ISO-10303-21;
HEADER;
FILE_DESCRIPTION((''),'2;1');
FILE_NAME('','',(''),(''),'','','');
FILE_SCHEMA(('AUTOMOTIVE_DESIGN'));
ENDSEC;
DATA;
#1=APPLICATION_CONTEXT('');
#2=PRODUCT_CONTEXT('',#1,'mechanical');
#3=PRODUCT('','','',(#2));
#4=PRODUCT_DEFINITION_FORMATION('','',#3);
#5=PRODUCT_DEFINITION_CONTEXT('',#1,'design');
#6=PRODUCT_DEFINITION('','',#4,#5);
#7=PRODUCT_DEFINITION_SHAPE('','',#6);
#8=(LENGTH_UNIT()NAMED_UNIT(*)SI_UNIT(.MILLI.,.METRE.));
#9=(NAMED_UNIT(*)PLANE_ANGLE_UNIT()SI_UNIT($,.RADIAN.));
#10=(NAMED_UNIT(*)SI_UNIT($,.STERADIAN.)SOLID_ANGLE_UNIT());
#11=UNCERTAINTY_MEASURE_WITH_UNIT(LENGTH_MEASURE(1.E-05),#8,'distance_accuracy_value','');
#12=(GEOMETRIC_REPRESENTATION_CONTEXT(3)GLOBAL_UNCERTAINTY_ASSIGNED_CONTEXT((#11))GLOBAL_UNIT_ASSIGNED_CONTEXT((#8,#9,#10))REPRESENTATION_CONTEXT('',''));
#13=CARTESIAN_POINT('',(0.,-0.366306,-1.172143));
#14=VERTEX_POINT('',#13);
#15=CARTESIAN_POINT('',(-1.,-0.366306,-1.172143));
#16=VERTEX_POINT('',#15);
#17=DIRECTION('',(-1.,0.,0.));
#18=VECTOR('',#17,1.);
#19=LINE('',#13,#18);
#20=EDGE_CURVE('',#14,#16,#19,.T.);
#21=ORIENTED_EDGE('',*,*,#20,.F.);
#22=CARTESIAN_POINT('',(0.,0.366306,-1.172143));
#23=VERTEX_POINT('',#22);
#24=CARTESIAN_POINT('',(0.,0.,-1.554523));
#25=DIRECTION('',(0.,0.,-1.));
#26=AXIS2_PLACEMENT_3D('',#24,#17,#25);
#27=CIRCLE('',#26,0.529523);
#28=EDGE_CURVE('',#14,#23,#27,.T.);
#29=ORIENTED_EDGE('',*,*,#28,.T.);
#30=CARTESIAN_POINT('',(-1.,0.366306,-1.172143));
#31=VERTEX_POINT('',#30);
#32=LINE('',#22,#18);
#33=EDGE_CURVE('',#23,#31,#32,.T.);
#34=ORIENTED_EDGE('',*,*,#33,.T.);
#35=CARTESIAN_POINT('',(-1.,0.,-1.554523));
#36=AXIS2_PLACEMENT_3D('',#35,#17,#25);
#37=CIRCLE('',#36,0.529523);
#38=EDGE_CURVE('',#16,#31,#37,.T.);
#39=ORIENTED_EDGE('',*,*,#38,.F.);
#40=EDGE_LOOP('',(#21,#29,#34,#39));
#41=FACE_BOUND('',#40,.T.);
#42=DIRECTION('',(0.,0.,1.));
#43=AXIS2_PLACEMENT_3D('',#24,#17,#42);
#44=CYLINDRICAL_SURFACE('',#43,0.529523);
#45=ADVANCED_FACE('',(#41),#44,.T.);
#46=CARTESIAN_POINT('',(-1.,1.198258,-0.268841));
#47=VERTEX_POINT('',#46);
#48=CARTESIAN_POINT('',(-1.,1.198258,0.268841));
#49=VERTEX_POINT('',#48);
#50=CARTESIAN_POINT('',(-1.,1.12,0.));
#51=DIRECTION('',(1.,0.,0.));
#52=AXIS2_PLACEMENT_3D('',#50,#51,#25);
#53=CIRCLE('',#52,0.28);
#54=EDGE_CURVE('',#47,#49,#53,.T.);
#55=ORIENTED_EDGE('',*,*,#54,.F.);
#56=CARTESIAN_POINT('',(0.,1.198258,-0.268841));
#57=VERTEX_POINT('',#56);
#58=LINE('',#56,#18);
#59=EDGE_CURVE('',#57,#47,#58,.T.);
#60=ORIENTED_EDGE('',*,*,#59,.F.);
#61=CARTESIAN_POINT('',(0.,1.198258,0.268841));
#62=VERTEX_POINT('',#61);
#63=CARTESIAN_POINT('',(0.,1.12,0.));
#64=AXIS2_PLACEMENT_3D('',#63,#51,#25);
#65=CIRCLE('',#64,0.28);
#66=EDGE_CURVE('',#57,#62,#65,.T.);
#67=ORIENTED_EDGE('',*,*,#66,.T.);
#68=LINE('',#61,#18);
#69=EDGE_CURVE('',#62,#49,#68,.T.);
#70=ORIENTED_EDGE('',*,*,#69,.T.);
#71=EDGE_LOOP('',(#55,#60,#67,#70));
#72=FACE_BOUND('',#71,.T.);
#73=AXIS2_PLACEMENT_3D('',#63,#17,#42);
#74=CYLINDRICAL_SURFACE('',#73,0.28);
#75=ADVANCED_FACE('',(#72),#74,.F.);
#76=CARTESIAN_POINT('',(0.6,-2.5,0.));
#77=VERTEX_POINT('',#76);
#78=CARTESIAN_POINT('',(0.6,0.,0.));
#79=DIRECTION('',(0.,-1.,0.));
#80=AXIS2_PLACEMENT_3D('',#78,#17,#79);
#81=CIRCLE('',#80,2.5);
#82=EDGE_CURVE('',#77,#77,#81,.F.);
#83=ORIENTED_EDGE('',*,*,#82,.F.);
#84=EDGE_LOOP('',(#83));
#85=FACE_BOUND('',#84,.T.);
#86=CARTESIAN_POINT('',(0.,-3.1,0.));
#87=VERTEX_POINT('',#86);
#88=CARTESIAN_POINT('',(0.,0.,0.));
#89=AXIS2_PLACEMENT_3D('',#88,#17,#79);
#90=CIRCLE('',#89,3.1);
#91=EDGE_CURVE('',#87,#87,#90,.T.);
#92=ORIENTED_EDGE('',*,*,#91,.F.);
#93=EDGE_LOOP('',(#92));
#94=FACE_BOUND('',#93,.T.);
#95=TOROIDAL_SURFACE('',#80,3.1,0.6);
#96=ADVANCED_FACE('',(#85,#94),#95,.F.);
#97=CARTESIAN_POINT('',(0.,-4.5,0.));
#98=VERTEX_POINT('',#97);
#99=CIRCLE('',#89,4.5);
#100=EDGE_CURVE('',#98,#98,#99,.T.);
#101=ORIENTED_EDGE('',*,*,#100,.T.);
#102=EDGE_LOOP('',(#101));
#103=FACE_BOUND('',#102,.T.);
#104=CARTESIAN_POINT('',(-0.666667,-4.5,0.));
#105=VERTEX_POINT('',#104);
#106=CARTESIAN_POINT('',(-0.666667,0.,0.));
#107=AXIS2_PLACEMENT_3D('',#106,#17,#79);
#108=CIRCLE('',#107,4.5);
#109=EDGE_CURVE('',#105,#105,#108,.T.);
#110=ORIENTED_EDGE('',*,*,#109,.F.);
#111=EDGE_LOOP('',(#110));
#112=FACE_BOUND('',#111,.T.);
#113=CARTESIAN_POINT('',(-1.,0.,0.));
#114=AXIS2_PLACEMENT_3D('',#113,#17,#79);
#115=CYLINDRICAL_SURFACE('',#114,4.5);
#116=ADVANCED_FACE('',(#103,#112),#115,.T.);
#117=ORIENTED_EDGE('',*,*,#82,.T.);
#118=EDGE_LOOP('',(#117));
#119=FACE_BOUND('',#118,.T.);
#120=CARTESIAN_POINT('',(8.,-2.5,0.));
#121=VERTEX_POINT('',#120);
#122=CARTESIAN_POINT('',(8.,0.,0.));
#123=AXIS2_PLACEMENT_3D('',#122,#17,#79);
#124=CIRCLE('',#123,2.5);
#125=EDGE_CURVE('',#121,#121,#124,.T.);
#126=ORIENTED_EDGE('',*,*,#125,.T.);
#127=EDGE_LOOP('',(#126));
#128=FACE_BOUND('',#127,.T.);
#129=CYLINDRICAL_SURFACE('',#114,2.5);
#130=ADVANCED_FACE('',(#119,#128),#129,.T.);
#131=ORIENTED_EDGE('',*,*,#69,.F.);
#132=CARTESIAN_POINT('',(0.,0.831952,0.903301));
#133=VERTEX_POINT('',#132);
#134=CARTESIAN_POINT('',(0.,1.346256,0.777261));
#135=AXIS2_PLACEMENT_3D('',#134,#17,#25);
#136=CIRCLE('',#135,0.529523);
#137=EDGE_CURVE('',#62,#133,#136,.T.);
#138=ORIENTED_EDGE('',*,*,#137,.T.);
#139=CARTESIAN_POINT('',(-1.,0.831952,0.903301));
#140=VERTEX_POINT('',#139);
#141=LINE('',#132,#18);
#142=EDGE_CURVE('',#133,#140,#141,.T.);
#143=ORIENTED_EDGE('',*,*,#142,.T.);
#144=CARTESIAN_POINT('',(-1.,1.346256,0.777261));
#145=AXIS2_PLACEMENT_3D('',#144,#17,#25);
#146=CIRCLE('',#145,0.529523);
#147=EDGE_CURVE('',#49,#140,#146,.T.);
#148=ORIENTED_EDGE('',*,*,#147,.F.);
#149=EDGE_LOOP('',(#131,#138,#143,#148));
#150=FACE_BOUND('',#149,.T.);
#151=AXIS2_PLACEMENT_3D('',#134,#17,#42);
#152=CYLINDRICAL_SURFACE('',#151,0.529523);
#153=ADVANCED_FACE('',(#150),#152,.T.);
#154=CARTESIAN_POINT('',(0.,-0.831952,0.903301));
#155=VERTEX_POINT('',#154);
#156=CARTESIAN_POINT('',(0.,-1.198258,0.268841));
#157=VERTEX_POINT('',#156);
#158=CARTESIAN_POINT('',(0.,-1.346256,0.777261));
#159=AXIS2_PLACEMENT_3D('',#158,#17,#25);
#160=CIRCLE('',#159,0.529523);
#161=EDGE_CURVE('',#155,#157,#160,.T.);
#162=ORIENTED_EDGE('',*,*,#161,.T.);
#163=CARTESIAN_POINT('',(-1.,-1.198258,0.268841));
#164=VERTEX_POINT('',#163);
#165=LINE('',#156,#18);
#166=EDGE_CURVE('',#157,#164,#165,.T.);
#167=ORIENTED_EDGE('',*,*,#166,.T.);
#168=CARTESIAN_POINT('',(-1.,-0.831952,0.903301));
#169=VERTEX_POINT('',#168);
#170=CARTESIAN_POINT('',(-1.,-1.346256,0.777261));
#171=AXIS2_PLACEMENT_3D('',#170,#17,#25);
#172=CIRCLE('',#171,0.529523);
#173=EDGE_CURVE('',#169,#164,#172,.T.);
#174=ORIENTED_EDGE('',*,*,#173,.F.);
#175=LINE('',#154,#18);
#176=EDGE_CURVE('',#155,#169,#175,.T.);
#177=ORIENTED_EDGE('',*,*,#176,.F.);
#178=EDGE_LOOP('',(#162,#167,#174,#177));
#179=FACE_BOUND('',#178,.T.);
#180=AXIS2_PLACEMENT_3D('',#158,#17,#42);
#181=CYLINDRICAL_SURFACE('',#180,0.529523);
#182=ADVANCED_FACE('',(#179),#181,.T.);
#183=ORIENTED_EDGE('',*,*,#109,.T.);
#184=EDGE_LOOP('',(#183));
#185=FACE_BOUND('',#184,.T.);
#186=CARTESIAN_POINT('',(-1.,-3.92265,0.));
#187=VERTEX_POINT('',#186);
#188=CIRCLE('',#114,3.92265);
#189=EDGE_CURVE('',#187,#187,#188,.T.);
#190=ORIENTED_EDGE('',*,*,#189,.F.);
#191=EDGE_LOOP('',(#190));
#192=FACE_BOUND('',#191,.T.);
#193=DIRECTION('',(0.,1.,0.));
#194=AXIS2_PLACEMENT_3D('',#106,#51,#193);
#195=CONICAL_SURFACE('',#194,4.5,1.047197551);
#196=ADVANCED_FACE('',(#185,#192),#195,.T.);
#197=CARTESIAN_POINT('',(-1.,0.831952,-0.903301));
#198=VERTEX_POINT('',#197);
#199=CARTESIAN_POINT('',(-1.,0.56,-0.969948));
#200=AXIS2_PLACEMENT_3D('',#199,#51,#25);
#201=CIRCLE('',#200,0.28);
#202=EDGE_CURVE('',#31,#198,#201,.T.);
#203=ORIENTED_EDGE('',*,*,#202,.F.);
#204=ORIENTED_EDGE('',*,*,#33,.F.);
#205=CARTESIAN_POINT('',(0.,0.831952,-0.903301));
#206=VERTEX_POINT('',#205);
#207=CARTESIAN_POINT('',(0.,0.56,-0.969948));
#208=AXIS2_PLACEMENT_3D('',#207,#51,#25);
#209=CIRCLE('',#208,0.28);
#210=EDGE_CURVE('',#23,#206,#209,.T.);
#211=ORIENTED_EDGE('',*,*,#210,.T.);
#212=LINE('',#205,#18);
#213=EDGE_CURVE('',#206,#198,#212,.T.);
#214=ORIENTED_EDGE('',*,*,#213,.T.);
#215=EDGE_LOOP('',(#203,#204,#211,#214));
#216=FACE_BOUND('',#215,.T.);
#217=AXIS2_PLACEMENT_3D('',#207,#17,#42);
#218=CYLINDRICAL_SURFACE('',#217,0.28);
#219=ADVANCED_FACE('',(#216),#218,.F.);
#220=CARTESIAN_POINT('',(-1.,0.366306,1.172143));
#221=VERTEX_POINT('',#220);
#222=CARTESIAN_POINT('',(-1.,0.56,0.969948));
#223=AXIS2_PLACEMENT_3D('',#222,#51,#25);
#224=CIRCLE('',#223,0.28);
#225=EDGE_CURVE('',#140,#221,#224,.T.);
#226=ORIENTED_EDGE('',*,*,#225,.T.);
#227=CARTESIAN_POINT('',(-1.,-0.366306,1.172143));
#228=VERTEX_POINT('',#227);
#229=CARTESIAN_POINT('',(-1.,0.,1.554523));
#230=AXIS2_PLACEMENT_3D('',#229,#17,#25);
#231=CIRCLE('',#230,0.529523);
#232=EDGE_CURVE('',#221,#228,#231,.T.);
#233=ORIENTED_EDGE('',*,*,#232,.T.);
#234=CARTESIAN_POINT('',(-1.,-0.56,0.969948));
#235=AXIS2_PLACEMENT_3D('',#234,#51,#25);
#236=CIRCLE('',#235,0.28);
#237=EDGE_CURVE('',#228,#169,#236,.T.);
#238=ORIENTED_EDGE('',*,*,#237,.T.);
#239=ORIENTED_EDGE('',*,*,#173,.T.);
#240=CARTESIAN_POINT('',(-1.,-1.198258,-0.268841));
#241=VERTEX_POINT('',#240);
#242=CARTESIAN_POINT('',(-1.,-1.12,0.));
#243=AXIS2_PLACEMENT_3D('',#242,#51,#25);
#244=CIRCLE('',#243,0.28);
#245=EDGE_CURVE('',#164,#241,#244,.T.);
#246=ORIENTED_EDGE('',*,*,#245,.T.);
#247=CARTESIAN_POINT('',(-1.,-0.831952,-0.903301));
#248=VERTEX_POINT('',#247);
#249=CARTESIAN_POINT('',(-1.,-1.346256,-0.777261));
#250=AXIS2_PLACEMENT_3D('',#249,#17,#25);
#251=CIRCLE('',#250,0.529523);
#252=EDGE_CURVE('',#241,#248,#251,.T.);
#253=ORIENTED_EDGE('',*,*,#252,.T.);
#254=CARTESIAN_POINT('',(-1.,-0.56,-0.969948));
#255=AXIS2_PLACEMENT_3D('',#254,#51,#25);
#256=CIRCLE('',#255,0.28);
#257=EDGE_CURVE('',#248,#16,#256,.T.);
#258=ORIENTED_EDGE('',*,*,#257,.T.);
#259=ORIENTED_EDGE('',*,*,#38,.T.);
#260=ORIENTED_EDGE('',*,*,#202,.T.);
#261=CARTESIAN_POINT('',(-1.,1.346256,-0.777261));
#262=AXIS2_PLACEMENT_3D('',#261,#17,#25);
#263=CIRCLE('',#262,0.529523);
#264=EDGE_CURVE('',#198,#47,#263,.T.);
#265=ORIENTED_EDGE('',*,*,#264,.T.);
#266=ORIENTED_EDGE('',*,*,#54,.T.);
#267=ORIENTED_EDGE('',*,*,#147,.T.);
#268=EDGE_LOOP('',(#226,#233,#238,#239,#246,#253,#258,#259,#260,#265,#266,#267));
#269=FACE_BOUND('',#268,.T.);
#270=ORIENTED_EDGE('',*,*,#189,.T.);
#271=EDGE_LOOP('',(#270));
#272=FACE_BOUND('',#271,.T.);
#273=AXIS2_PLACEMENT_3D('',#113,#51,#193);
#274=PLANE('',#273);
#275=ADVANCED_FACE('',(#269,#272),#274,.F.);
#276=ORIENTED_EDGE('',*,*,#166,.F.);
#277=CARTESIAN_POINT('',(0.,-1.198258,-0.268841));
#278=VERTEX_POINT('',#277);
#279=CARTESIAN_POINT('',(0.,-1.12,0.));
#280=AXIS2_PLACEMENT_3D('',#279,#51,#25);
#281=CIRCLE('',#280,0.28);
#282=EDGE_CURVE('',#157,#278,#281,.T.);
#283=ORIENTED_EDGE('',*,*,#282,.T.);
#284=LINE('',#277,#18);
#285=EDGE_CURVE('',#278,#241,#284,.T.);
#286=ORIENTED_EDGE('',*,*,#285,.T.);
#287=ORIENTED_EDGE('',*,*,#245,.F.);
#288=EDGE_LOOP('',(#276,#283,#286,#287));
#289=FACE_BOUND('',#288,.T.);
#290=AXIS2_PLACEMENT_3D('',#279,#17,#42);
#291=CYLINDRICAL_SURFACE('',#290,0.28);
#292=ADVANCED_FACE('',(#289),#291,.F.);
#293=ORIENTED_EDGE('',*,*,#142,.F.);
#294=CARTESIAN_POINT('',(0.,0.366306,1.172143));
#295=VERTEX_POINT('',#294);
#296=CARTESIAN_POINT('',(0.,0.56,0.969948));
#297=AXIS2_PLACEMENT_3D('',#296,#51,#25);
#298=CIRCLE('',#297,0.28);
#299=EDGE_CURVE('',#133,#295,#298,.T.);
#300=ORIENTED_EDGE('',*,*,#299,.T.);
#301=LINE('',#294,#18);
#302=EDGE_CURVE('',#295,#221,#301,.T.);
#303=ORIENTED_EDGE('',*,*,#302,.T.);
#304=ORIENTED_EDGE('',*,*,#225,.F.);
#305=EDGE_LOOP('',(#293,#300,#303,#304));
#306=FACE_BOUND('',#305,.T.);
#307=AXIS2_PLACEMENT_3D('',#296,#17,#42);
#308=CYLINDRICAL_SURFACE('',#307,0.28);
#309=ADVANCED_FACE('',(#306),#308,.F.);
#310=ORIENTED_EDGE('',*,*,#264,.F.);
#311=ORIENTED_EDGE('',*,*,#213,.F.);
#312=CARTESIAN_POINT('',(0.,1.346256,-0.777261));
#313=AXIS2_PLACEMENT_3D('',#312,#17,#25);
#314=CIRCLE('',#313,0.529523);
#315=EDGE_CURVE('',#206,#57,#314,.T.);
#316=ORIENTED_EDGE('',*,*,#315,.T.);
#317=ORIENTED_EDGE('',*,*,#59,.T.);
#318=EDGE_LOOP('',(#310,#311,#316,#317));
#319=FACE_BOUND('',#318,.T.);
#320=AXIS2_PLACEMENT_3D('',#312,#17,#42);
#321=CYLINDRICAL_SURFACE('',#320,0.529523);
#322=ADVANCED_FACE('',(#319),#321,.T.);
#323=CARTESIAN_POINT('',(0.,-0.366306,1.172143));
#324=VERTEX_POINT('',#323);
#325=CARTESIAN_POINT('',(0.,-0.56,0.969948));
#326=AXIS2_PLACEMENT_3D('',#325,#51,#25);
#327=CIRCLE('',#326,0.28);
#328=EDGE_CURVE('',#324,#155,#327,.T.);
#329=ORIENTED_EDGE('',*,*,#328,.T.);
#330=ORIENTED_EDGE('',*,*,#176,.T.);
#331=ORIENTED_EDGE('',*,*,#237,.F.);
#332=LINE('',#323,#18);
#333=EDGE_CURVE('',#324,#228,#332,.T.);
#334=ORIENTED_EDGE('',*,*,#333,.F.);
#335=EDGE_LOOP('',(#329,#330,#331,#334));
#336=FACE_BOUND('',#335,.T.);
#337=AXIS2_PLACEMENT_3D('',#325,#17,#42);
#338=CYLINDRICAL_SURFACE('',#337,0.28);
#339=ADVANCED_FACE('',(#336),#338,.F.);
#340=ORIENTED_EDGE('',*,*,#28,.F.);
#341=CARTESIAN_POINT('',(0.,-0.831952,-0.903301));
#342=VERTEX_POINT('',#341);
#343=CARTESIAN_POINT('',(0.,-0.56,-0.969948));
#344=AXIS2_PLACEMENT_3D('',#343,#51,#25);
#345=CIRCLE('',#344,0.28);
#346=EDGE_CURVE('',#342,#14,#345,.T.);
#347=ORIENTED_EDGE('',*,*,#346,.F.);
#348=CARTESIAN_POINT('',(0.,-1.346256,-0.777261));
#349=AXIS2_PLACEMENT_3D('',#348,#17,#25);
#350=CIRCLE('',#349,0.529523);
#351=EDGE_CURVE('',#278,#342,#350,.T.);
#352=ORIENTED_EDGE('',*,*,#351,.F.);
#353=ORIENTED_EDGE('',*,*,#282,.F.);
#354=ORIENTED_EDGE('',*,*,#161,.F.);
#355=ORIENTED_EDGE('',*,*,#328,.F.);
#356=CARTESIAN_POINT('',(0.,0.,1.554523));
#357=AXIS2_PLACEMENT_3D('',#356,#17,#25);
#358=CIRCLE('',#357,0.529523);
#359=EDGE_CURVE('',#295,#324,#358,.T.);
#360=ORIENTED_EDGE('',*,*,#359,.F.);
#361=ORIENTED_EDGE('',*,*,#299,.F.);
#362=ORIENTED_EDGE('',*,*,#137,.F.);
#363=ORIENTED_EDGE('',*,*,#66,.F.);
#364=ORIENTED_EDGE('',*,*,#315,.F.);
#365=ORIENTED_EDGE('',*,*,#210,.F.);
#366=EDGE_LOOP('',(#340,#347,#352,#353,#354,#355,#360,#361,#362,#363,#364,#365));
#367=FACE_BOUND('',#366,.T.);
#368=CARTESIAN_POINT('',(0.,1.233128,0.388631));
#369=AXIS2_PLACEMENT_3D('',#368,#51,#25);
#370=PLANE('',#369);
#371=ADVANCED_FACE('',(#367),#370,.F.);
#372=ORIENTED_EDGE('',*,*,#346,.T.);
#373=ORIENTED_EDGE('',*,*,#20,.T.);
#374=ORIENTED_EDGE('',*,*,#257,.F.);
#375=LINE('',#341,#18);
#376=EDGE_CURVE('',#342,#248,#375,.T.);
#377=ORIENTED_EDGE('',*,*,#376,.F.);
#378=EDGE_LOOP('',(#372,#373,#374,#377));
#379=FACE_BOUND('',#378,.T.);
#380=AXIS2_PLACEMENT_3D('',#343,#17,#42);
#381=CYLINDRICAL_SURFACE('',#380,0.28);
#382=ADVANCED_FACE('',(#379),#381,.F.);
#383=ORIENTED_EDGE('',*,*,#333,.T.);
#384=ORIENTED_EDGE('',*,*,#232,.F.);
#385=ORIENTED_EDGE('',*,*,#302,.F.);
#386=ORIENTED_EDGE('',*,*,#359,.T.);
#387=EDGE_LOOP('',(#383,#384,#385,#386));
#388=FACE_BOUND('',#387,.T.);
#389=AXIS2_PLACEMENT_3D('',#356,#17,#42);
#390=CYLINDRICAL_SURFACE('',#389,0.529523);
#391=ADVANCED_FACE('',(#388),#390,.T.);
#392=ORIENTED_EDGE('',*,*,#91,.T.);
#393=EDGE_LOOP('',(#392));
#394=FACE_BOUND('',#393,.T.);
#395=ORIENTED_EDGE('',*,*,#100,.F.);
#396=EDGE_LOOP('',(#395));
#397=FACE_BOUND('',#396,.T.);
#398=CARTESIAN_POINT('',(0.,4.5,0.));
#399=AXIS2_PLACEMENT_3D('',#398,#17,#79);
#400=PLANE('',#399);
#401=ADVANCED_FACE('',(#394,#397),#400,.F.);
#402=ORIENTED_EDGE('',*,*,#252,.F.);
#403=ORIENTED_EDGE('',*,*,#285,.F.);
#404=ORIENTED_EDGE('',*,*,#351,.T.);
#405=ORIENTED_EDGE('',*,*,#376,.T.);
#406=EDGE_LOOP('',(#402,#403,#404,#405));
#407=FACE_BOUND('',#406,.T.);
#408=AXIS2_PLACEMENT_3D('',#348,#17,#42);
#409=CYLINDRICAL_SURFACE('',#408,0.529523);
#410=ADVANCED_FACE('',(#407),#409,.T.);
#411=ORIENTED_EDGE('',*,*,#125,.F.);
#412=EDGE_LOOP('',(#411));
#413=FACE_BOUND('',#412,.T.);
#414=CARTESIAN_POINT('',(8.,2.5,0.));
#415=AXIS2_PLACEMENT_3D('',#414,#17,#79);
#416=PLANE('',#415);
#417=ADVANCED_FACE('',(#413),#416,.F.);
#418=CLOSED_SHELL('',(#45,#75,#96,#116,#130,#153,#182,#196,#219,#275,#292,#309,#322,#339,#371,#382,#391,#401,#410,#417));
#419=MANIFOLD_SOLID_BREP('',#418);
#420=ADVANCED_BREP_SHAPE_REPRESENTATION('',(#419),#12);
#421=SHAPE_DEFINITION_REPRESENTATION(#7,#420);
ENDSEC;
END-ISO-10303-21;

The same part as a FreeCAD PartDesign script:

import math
import FreeCAD as App
import Part
import Sketcher
from FreeCAD import Vector
Q = App.Units.Quantity


def edges_at(feature, points):
    """Names of the edges that pass closest to the given points."""
    edges = feature.Shape.Edges
    near = lambda p: min(range(len(edges)), key=lambda i: edges[i].distToShape(Part.Vertex(*p))[0])
    return sorted({f"Edge{near(p) + 1}" for p in points})

doc = App.newDocument("Part")
body = doc.addObject("PartDesign::Body", "Body")

# Sketch on XY plane
sketch1 = body.newObject("Sketcher::SketchObject", "Sketch")
sketch1.AttachmentSupport = (doc.getObject("XY_Plane"), [""])
sketch1.MapMode = "FlatFace"
sketch1.addGeometry([
    Part.LineSegment(Vector(8, 2.5, 0), Vector(0, 2.5, 0)),  # 0
    Part.LineSegment(Vector(0, 2.5, 0), Vector(0, 4.5, 0)),  # 1
    Part.LineSegment(Vector(0, 4.5, 0), Vector(-0.7, 4.5, 0)),  # 2
    Part.LineSegment(Vector(-0.7, 4.5, 0), Vector(-1, 3.9, 0)),  # 3
    Part.LineSegment(Vector(-1, 3.9, 0), Vector(-1, 0, 0)),  # 4
    Part.LineSegment(Vector(-1, 0, 0), Vector(8, 0, 0)),  # 5
    Part.LineSegment(Vector(8, 0, 0), Vector(8, 2.5, 0)),  # 6
], False)
sketch1.addConstraint([
    Sketcher.Constraint("Coincident", 0, 2, 1, 1),
    Sketcher.Constraint("Coincident", 1, 2, 2, 1),
    Sketcher.Constraint("Coincident", 2, 2, 3, 1),
    Sketcher.Constraint("Coincident", 3, 2, 4, 1),
    Sketcher.Constraint("Coincident", 4, 2, 5, 1),
    Sketcher.Constraint("Coincident", 5, 2, 6, 1),
    Sketcher.Constraint("Coincident", 6, 2, 0, 1),
    Sketcher.Constraint("Horizontal", 0),
    Sketcher.Constraint("Vertical", 1),
    Sketcher.Constraint("Horizontal", 2),
    Sketcher.Constraint("Vertical", 4),
    Sketcher.Constraint("Horizontal", 5),
    Sketcher.Constraint("Vertical", 6),
    Sketcher.Constraint("PointOnObject", 0, 2, -2),
    Sketcher.Constraint("PointOnObject", 4, 2, -1),
    Sketcher.Constraint("DistanceX", 0, 2, 0, 1, Q("8 mm")),
    Sketcher.Constraint("DistanceX", 5, 1, 5, 2, Q("9 mm")),
    Sketcher.Constraint("DistanceY", 1, 1, 1, 2, Q("2 mm")),
    Sketcher.Constraint("Angle", 3, Q("-120 deg")),
    Sketcher.Constraint("DistanceY", 6, 1, 6, 2, Q("2.5 mm")),
    Sketcher.Constraint("DistanceY", 4, 2, 4, 1, Q("3.92265 mm")),
])
revolution = body.newObject("PartDesign::Revolution", "Revolution")
revolution.Profile = sketch1
revolution.ReferenceAxis = (sketch1, ["H_Axis"])
revolution.Angle = 360

# Sketch on YZ plane
sketch2 = body.newObject("Sketcher::SketchObject", "Sketch001")
sketch2.AttachmentSupport = (doc.getObject("YZ_Plane"), [""])
sketch2.MapMode = "FlatFace"
sketch2.AttachmentOffset = App.Placement(Vector(0, 0, -1), App.Rotation())
sketch2.addGeometry([
    Part.ArcOfCircle(Part.Circle(Vector(1.12, 0, 0), Vector(0, 0, 1), 0.28), math.radians(-74), math.radians(74)),  # 0
    Part.ArcOfCircle(Part.Circle(Vector(1.35, 0.78, 0), Vector(0, 0, 1), 0.53), math.radians(166), math.radians(254)),  # 1
    Part.ArcOfCircle(Part.Circle(Vector(0.56, 0.97, 0), Vector(0, 0, 1), 0.28), math.radians(-14), math.radians(134)),  # 2
    Part.ArcOfCircle(Part.Circle(Vector(0, 1.55, 0), Vector(0, 0, 1), 0.53), math.radians(-134), math.radians(-46)),  # 3
    Part.ArcOfCircle(Part.Circle(Vector(-0.56, 0.97, 0), Vector(0, 0, 1), 0.28), math.radians(46), math.radians(194)),  # 4
    Part.ArcOfCircle(Part.Circle(Vector(-1.35, 0.78, 0), Vector(0, 0, 1), 0.53), math.radians(-74), math.radians(14)),  # 5
    Part.ArcOfCircle(Part.Circle(Vector(-1.12, 0, 0), Vector(0, 0, 1), 0.28), math.radians(106), math.radians(254)),  # 6
    Part.ArcOfCircle(Part.Circle(Vector(-1.35, -0.78, 0), Vector(0, 0, 1), 0.53), math.radians(-14), math.radians(74)),  # 7
    Part.ArcOfCircle(Part.Circle(Vector(-0.56, -0.97, 0), Vector(0, 0, 1), 0.28), math.radians(166), math.radians(314)),  # 8
    Part.ArcOfCircle(Part.Circle(Vector(0, -1.55, 0), Vector(0, 0, 1), 0.53), math.radians(46), math.radians(134)),  # 9
    Part.ArcOfCircle(Part.Circle(Vector(0.56, -0.97, 0), Vector(0, 0, 1), 0.28), math.radians(-134), math.radians(14)),  # 10
    Part.ArcOfCircle(Part.Circle(Vector(1.35, -0.78, 0), Vector(0, 0, 1), 0.53), math.radians(106), math.radians(194)),  # 11
], False)
sketch2.addConstraint([
    Sketcher.Constraint("Tangent", 0, 2, 1, 2),
    Sketcher.Constraint("Tangent", 1, 1, 2, 1),
    Sketcher.Constraint("Tangent", 2, 2, 3, 2),
    Sketcher.Constraint("Tangent", 3, 1, 4, 1),
    Sketcher.Constraint("Tangent", 4, 2, 5, 2),
    Sketcher.Constraint("Tangent", 5, 1, 6, 1),
    Sketcher.Constraint("Tangent", 6, 2, 7, 2),
    Sketcher.Constraint("Tangent", 7, 1, 8, 1),
    Sketcher.Constraint("Tangent", 8, 2, 9, 2),
    Sketcher.Constraint("Tangent", 9, 1, 10, 1),
    Sketcher.Constraint("Tangent", 10, 2, 11, 2),
    Sketcher.Constraint("Tangent", 11, 1, 0, 1),
    Sketcher.Constraint("Equal", 0, 2),
    Sketcher.Constraint("Equal", 1, 3),
    Sketcher.Constraint("Equal", 2, 4),
    Sketcher.Constraint("Equal", 3, 5),
    Sketcher.Constraint("Equal", 4, 6),
    Sketcher.Constraint("Equal", 5, 7),
    Sketcher.Constraint("Equal", 6, 8),
    Sketcher.Constraint("Equal", 7, 9),
    Sketcher.Constraint("Equal", 8, 10),
    Sketcher.Constraint("Equal", 9, 11),
    Sketcher.Constraint("Symmetric", 0, 3, 6, 3, -1, 1),
    Sketcher.Constraint("Symmetric", 2, 3, 8, 3, -1, 1),
    Sketcher.Constraint("Symmetric", 4, 3, 10, 3, -1, 1),
    Sketcher.Constraint("Symmetric", 2, 3, 4, 3, -2),
    Sketcher.Constraint("PointOnObject", 0, 3, -1),
    Sketcher.Constraint("Radius", 0, Q("0.28 mm")),
    Sketcher.Constraint("DistanceX", -1, 1, 0, 3, Q("1.12 mm")),
    Sketcher.Constraint("DistanceX", -1, 1, 2, 3, Q("0.56 mm")),
    Sketcher.Constraint("Radius", 1, Q("0.529523 mm")),
    Sketcher.Constraint("DistanceX", 0, 2, 1, 3, Q("0.147998 mm")),
])
pocket1 = body.newObject("PartDesign::Pocket", "Pocket")
pocket1.Profile = sketch2
pocket1.Length = 1
pocket1.Reversed = True
doc.recompute()

fillet = body.newObject("PartDesign::Fillet", "Fillet")
fillet.Base = (pocket1, edges_at(pocket1, [(0, 2.5, 0)]))
fillet.Radius = 0.6

doc.recompute()
